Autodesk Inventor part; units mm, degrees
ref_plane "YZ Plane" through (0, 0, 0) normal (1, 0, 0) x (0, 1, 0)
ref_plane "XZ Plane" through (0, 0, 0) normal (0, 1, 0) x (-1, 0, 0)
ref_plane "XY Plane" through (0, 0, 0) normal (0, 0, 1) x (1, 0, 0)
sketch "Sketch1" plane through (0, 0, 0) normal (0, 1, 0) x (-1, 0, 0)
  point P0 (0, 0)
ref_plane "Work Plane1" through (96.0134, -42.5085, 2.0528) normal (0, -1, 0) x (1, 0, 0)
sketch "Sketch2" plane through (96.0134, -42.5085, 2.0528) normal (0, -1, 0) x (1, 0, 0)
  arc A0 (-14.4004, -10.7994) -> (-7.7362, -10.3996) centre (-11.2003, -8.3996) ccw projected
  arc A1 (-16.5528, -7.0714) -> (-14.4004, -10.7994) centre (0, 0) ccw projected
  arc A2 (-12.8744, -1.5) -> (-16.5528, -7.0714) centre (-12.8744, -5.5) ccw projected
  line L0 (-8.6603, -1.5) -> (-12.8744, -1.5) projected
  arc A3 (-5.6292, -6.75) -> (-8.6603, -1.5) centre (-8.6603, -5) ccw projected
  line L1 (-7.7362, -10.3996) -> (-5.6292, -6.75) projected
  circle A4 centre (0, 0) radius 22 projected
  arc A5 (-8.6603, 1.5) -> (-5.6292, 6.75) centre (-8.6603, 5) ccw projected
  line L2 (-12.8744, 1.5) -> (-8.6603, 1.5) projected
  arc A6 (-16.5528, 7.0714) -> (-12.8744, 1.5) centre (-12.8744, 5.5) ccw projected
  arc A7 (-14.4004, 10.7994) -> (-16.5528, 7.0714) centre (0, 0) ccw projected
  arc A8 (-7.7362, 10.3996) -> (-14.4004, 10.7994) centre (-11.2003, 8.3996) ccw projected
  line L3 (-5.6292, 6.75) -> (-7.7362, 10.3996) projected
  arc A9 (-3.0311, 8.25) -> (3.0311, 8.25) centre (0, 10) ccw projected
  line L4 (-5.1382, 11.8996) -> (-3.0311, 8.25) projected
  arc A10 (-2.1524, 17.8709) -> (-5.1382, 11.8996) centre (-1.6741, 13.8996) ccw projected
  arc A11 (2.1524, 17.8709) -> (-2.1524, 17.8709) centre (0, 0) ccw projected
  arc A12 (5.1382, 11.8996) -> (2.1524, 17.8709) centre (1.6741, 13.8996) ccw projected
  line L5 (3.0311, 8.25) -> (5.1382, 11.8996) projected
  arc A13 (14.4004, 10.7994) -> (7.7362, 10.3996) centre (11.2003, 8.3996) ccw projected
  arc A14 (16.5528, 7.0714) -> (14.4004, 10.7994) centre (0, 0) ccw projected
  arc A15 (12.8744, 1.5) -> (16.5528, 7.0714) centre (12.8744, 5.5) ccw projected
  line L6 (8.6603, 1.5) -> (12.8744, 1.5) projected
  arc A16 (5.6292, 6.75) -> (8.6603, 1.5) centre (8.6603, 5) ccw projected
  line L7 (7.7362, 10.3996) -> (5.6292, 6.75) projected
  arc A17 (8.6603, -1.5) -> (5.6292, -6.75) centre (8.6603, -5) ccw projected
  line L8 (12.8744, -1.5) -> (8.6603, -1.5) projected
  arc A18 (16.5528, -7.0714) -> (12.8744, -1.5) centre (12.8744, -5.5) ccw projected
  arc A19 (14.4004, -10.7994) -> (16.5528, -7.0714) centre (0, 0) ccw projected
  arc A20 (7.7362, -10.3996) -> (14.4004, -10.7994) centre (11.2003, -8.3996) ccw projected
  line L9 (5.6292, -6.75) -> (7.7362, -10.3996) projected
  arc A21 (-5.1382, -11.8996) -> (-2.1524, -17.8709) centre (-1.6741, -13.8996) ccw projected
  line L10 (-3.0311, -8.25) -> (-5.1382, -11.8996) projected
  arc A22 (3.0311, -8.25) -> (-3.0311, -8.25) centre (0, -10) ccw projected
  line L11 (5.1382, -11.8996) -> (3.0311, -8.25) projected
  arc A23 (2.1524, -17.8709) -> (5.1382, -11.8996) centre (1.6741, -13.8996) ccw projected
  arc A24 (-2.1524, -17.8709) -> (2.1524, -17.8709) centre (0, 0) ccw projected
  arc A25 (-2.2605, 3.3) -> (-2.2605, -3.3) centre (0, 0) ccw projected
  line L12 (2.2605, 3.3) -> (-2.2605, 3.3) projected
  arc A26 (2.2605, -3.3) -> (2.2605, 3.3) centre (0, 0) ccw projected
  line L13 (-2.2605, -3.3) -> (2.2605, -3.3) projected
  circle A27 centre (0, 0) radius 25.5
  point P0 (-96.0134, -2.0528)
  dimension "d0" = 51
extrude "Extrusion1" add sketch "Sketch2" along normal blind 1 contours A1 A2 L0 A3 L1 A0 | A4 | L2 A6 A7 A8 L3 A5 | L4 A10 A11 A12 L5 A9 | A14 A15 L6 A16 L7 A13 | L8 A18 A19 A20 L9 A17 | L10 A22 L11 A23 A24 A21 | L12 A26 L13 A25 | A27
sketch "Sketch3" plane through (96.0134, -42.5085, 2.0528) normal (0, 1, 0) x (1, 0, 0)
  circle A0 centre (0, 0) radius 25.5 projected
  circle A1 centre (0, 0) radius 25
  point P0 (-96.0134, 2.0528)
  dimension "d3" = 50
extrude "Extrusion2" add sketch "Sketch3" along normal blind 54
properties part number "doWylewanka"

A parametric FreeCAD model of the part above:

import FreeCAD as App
import Part
import Sketcher

V = App.Vector
Q = App.Units.Quantity

doc = App.newDocument("Part")
body = doc.addObject("PartDesign::Body", "Body")

sketch1 = body.newObject("Sketcher::SketchObject", "Sketch")
sketch1.AttachmentSupport = (doc.getObject("XZ_Plane"), [""])
sketch1.MapMode = "FlatFace"
sketch1.AttachmentOffset = App.Placement(V(0, 0, 42.5085), App.Rotation())
sketch1.addGeometry(Part.Circle(V(96, 2, 0), V(0, 0, 1), 26), False)
sketch1.addConstraint(Sketcher.Constraint("Diameter", 0, Q("51 mm")))
sketch1.addConstraint(Sketcher.Constraint("DistanceX", -1, 1, 0, 3, Q("96.0134 mm")))
sketch1.addConstraint(Sketcher.Constraint("DistanceY", -1, 1, 0, 3, Q("2.0528 mm")))
pad1 = body.newObject("PartDesign::Pad", "Pad")
pad1.Profile = sketch1
pad1.Length = 1

sketch2 = body.newObject("Sketcher::SketchObject", "Sketch001")
sketch2.AttachmentSupport = (doc.getObject("XZ_Plane"), [""])
sketch2.MapMode = "FlatFace"
sketch2.AttachmentOffset = App.Placement(V(0, 0, 42.5085), App.Rotation())
sketch2.addGeometry(Part.Circle(V(96, 2, 0), V(0, 0, 1), 26), False)
sketch2.addGeometry(Part.Circle(V(96, 2, 0), V(0, 0, 1), 25), False)
sketch2.addConstraint(Sketcher.Constraint("Coincident", 1, 3, 0, 3))
sketch2.addConstraint(Sketcher.Constraint("Diameter", 1, Q("50 mm")))
sketch2.addConstraint(Sketcher.Constraint("Diameter", 0, Q("51 mm")))
sketch2.addConstraint(Sketcher.Constraint("DistanceX", -1, 1, 0, 3, Q("96.0134 mm")))
sketch2.addConstraint(Sketcher.Constraint("DistanceY", -1, 1, 0, 3, Q("2.0528 mm")))
pad2 = body.newObject("PartDesign::Pad", "Pad001")
pad2.Profile = sketch2
pad2.Length = 54
pad2.Reversed = True

doc.recompute()
